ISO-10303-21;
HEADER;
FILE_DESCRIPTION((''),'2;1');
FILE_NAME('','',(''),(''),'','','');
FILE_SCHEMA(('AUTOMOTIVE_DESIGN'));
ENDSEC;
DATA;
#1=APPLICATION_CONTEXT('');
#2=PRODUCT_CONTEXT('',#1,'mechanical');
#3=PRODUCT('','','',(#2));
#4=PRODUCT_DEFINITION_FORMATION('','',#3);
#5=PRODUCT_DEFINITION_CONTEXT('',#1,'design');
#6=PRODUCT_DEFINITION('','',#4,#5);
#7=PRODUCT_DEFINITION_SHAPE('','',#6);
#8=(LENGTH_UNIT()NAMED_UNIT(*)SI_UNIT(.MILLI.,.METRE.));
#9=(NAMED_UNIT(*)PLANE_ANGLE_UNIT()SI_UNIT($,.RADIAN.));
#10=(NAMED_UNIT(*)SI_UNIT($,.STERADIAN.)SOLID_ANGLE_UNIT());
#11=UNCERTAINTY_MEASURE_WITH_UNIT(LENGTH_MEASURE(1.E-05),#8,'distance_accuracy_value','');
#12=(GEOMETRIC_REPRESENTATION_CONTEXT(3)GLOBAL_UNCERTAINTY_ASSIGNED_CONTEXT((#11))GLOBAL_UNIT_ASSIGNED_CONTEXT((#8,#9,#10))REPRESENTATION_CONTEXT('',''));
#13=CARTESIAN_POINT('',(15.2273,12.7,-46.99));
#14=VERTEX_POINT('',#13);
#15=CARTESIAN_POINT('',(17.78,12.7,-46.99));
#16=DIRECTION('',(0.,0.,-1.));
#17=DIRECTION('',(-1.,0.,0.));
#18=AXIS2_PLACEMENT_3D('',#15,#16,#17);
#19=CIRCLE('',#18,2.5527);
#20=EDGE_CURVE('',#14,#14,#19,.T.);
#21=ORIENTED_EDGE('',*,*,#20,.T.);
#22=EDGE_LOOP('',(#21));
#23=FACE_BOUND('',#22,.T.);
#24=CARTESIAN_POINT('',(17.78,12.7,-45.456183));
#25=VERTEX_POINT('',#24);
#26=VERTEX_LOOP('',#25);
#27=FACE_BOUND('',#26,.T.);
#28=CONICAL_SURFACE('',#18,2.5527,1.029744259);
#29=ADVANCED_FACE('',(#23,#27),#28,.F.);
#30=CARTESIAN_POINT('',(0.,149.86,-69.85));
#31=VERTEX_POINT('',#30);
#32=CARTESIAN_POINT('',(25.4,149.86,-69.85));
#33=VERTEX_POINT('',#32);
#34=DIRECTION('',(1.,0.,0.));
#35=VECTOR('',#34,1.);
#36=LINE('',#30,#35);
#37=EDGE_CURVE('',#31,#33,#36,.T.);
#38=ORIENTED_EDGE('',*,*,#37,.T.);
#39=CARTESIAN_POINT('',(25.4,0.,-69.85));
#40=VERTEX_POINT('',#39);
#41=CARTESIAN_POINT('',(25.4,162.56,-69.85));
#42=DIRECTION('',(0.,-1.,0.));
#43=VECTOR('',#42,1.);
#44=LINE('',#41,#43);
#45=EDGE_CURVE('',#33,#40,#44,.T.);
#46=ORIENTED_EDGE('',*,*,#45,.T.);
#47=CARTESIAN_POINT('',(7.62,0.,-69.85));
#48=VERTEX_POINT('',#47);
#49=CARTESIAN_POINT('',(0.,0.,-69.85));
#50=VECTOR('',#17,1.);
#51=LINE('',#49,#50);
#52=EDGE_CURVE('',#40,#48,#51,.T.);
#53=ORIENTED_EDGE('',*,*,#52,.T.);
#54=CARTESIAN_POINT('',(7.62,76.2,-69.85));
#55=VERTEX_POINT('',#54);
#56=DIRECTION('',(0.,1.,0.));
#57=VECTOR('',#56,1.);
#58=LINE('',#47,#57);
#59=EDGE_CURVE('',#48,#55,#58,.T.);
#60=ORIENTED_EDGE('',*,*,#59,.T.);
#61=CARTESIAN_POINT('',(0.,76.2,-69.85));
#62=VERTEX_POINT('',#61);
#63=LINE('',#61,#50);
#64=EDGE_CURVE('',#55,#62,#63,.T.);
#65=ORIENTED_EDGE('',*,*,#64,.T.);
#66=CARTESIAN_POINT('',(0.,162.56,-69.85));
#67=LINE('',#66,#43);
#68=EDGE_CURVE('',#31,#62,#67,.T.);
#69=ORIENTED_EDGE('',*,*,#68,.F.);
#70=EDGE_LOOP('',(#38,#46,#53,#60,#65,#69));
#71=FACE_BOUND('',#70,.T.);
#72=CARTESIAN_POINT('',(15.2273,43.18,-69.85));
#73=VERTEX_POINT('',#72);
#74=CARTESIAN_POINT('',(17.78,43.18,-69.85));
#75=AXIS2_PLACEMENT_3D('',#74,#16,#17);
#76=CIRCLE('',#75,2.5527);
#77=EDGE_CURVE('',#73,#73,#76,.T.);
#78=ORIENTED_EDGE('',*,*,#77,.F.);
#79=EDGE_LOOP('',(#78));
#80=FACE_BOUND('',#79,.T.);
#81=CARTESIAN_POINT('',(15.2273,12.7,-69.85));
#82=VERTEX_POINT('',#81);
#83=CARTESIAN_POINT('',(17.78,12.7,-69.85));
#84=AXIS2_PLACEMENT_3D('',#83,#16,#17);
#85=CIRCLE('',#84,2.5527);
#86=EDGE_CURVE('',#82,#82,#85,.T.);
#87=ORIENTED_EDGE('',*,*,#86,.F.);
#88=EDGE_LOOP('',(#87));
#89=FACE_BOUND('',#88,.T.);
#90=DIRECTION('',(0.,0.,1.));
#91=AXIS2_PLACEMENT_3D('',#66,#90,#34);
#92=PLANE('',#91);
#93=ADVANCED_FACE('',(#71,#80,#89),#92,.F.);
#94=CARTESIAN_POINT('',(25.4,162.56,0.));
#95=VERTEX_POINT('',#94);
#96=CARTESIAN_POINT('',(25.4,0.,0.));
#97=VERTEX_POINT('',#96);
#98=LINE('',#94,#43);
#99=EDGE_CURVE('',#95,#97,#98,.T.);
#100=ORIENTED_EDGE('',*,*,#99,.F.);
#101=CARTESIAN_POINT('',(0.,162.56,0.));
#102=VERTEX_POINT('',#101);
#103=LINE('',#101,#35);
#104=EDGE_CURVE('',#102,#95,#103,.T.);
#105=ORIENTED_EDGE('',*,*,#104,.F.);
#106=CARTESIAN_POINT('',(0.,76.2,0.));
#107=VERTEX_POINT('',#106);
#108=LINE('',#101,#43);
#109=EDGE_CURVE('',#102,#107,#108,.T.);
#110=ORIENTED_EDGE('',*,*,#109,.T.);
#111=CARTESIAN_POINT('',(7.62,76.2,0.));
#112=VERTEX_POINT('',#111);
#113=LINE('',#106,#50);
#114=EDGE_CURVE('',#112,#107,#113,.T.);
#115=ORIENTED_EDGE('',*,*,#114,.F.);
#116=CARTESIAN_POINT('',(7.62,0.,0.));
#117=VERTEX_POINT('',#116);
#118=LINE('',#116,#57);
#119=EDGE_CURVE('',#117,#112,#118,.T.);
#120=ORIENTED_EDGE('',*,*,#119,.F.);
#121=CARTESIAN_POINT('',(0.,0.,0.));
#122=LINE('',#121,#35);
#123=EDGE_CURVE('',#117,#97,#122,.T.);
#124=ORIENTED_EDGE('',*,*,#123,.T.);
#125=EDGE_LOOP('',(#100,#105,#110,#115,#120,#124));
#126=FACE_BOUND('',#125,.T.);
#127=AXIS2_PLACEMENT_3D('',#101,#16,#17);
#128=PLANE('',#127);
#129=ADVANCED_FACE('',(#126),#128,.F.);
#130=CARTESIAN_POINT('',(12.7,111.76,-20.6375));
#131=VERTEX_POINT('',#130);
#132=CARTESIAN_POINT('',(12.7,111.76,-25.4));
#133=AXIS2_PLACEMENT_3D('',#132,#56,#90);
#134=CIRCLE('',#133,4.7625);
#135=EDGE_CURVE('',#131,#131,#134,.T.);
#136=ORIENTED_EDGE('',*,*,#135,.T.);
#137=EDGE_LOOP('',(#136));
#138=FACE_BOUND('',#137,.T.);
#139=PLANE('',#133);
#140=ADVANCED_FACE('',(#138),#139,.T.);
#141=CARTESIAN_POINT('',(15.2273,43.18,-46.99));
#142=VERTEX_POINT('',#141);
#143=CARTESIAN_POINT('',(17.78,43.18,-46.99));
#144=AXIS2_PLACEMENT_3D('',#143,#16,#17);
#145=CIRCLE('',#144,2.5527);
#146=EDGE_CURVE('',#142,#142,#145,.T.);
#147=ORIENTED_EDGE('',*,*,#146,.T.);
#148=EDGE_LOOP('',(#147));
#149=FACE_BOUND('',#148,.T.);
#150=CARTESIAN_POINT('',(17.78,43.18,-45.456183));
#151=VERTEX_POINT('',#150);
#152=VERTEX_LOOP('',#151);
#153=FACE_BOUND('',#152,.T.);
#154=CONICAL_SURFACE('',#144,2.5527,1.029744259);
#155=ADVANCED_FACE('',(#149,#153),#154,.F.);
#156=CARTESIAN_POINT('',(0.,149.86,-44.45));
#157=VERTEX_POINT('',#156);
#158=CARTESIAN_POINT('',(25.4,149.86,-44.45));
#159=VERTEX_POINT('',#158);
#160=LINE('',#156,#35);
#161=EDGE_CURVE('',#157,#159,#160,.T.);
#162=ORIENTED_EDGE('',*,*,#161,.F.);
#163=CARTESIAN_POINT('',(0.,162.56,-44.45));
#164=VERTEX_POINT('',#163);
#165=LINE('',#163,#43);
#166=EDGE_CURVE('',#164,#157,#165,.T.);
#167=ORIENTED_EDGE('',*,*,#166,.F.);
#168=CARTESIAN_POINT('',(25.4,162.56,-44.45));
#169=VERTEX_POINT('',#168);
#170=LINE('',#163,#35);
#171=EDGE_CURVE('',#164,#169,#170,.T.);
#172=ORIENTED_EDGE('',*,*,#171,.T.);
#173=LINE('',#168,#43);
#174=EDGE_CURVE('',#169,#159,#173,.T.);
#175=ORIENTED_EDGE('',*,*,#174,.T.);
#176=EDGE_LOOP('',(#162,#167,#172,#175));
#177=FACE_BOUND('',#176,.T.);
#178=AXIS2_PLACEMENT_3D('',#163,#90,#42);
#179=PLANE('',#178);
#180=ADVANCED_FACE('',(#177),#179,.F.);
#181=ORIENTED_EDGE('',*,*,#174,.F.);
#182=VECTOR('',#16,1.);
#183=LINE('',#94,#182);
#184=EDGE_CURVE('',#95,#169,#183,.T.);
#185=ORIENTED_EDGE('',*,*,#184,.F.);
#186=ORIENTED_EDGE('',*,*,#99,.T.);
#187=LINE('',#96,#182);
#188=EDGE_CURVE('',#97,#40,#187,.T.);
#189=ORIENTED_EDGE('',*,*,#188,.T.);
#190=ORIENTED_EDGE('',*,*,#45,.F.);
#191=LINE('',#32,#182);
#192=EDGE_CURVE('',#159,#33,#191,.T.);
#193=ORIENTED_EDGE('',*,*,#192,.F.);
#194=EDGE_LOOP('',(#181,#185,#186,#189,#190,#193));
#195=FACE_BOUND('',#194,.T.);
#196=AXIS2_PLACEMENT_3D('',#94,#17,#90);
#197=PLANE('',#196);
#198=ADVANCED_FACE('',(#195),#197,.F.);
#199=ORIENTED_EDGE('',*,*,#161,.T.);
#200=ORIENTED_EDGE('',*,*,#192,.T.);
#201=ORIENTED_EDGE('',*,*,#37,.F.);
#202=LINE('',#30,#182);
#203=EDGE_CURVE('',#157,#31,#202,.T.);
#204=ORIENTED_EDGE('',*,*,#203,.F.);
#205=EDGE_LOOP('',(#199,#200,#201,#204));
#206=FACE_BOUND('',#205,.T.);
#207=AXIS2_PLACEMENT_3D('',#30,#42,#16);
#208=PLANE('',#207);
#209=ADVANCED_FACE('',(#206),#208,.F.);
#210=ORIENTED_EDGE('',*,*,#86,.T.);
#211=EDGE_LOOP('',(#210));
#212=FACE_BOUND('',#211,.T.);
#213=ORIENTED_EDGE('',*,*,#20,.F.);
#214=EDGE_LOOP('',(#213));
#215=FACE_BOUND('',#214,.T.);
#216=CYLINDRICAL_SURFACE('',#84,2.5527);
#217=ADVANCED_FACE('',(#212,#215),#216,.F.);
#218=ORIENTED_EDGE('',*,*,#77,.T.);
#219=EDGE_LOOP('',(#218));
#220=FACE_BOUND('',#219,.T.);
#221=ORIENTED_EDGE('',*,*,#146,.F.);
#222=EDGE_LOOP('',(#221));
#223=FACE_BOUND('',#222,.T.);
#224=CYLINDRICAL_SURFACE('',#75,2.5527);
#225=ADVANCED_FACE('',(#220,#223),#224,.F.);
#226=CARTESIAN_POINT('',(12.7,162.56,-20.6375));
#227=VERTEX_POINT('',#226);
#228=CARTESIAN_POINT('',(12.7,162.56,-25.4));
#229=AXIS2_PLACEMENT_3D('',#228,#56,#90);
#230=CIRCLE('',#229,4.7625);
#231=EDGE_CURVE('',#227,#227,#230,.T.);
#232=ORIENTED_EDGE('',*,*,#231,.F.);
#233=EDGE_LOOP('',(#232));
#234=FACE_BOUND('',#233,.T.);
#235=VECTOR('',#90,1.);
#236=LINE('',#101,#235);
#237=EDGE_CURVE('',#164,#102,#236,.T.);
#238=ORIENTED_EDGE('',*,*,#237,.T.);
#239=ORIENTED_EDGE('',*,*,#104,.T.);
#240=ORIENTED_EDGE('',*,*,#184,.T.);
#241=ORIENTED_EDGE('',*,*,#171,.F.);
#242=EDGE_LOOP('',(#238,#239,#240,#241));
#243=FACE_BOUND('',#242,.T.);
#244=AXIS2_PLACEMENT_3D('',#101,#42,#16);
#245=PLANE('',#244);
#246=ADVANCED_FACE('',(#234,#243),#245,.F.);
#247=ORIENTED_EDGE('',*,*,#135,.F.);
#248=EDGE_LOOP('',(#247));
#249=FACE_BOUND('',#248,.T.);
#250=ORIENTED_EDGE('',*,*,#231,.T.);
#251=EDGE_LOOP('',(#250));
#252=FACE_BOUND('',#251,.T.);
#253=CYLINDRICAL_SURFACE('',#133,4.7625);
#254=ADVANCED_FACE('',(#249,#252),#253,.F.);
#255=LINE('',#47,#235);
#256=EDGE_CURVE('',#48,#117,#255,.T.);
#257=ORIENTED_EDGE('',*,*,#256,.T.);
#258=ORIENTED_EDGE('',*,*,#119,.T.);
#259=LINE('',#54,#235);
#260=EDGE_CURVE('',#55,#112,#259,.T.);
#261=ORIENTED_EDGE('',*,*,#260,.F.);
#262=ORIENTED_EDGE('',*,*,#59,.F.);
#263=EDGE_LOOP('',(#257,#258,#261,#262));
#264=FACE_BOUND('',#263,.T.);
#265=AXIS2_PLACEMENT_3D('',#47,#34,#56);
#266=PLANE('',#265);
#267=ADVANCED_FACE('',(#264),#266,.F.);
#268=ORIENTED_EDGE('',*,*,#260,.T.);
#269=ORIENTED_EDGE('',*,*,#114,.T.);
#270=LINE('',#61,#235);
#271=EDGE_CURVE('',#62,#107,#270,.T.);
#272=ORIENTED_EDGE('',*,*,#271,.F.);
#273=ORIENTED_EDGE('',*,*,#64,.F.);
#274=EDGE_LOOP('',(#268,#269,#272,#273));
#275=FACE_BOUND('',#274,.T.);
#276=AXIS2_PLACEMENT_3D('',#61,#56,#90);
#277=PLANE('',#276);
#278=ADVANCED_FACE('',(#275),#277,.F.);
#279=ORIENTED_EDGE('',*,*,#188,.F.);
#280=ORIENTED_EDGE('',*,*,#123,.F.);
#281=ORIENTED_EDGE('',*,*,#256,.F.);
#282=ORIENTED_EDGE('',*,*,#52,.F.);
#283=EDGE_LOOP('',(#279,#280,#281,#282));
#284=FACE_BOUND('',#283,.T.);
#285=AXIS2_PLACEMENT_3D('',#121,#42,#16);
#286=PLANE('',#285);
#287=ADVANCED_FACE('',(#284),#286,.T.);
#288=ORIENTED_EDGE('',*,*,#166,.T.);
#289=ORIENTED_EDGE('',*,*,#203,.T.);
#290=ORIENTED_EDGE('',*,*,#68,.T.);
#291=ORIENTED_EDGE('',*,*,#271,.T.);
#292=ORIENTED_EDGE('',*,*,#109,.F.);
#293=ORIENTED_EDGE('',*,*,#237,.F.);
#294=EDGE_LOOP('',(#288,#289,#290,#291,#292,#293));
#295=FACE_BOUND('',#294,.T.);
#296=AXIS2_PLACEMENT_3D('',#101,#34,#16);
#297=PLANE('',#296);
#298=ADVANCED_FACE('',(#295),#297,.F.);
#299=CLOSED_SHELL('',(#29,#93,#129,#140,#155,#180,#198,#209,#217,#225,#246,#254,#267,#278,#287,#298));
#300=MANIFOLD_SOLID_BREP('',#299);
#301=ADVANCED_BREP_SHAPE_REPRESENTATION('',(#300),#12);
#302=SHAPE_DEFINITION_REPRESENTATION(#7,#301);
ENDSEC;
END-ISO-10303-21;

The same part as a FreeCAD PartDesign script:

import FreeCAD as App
import Part
import Sketcher
Q = App.Units.Quantity


def add_polygon(sketch, points):
    """Adds a closed chain of lines whose ends are joined by coincident constraints."""
    first, n = sketch.GeometryCount, len(points)
    for a, b in zip(points, points[1:] + points[:1]):
        sketch.addGeometry(Part.LineSegment(App.Vector(*a, 0), App.Vector(*b, 0)), False)
    for i in range(n):
        sketch.addConstraint(Sketcher.Constraint("Coincident", first + i, 2, first + (i + 1) % n, 1))

doc = App.newDocument("Part")
body = doc.addObject("PartDesign::Body", "Body")

# Sketch on XZ plane
sketch1 = body.newObject("Sketcher::SketchObject", "Sketch")
sketch1.AttachmentSupport = (doc.getObject("XZ_Plane"), [""])
sketch1.MapMode = "FlatFace"
add_polygon(sketch1, [(0, -70), (0, 0), (25, 0), (25, -70)])  # lines 0-3
sketch1.addConstraint(Sketcher.Constraint("Vertical", 0))
sketch1.addConstraint(Sketcher.Constraint("Horizontal", 1))
sketch1.addConstraint(Sketcher.Constraint("Vertical", 2))
sketch1.addConstraint(Sketcher.Constraint("Horizontal", 3))
sketch1.addConstraint(Sketcher.Constraint("Coincident", 0, 2, -1, 1))
sketch1.addConstraint(Sketcher.Constraint("DistanceX", 1, 1, 1, 2, Q("1 in")))
sketch1.addConstraint(Sketcher.Constraint("DistanceY", 0, 1, 0, 2, Q("2.75 in")))
pad1 = body.newObject("PartDesign::Pad", "Pad")
pad1.Profile = sketch1
pad1.Length = Q("6.4 in")
pad1.Reversed = True

# Sketch on XZ plane
sketch2 = body.newObject("Sketcher::SketchObject", "Sketch001")
sketch2.AttachmentSupport = (doc.getObject("XZ_Plane"), [""])
sketch2.MapMode = "FlatFace"
sketch2.AttachmentOffset = App.Placement(App.Vector(0, 0, -6.4 * 25.4), App.Rotation())
sketch2.addGeometry(Part.Circle(App.Vector(12.7, -25.4, 0), App.Vector(0, 0, 1), 4.8), False)
sketch2.addConstraint(Sketcher.Constraint("Diameter", 0, Q("0.375 in")))
sketch2.addConstraint(Sketcher.Constraint("DistanceY", 0, 3, -1, 1, Q("1 in")))
sketch2.addConstraint(Sketcher.Constraint("DistanceX", -1, 1, 0, 3, Q("0.5 in")))
pocket1 = body.newObject("PartDesign::Pocket", "Pocket")
pocket1.Profile = sketch2
pocket1.Length = Q("2 in")
pocket1.Reversed = True

# Sketch on XY plane
sketch3 = body.newObject("Sketcher::SketchObject", "Sketch002")
sketch3.AttachmentSupport = (doc.getObject("XY_Plane"), [""])
sketch3.MapMode = "FlatFace"
add_polygon(sketch3, [(0, 76), (0, 0), (8, 0), (8, 76)])  # lines 0-3
sketch3.addConstraint(Sketcher.Constraint("Vertical", 0))
sketch3.addConstraint(Sketcher.Constraint("Horizontal", 1))
sketch3.addConstraint(Sketcher.Constraint("Vertical", 2))
sketch3.addConstraint(Sketcher.Constraint("Horizontal", 3))
sketch3.addConstraint(Sketcher.Constraint("Coincident", 0, 2, -1, 1))
sketch3.addConstraint(Sketcher.Constraint("DistanceY", 0, 2, 0, 1, Q("3 in")))
sketch3.addConstraint(Sketcher.Constraint("DistanceX", 1, 1, 1, 2, Q("0.3 in")))
pocket2 = body.newObject("PartDesign::Pocket", "Pocket001")
pocket2.Profile = sketch3
pocket2.Type = "ThroughAll"

# Sketch on YZ plane
sketch4 = body.newObject("Sketcher::SketchObject", "Sketch003")
sketch4.AttachmentSupport = (doc.getObject("YZ_Plane"), [""])
sketch4.MapMode = "FlatFace"
sketch4.AttachmentOffset = App.Placement(App.Vector(0, 0, 1 * 25.4), App.Rotation())
add_polygon(sketch4, [(163, -44), (150, -44), (150, -70), (163, -70)])  # lines 0-3
sketch4.addConstraint(Sketcher.Constraint("Horizontal", 0))
sketch4.addConstraint(Sketcher.Constraint("Vertical", 1))
sketch4.addConstraint(Sketcher.Constraint("Horizontal", 2))
sketch4.addConstraint(Sketcher.Constraint("Vertical", 3))
sketch4.addConstraint(Sketcher.Constraint("DistanceY", 1, 2, 1, 1, Q("1 in")))
sketch4.addConstraint(Sketcher.Constraint("DistanceX", 0, 2, 0, 1, Q("0.5 in")))
sketch4.addConstraint(Sketcher.Constraint("DistanceX", -1, 1, 0, 2, Q("5.9 in")))
sketch4.addConstraint(Sketcher.Constraint("DistanceY", 0, 2, -1, 1, Q("1.75 in")))
pocket3 = body.newObject("PartDesign::Pocket", "Pocket002")
pocket3.Profile = sketch4
pocket3.Type = "ThroughAll"

# Sketch on XY plane
sketch5 = body.newObject("Sketcher::SketchObject", "Sketch004")
sketch5.AttachmentSupport = (doc.getObject("XY_Plane"), [""])
sketch5.MapMode = "FlatFace"
sketch5.AttachmentOffset = App.Placement(App.Vector(0, 0, -2.75 * 25.4), App.Rotation())
sketch5.addGeometry(Part.Circle(App.Vector(17.8, 43.2, 0), App.Vector(0, 0, 1), 2.6), False)
sketch5.addGeometry(Part.Circle(App.Vector(17.8, 12.7, 0), App.Vector(0, 0, 1), 2.6), False)
sketch5.addConstraint(Sketcher.Constraint("Equal", 0, 1))
sketch5.addConstraint(Sketcher.Constraint("Vertical", 0, 3, 1, 3))
sketch5.addConstraint(Sketcher.Constraint("Diameter", 0, Q("0.201 in")))
sketch5.addConstraint(Sketcher.Constraint("DistanceX", -1, 1, 0, 3, Q("0.7 in")))
sketch5.addConstraint(Sketcher.Constraint("DistanceY", -1, 1, 0, 3, Q("1.7 in")))
sketch5.addConstraint(Sketcher.Constraint("DistanceY", -1, 1, 1, 3, Q("0.5 in")))
doc.recompute()
hole = body.newObject("PartDesign::Hole", "Hole")
hole.Profile = sketch5
hole.ThreadType = "None"
hole.Diameter = Q("0.201 in")
hole.DepthType = "Dimension"
hole.Depth = Q("0.9 in")
hole.DrillPoint = "Angled"
hole.DrillPointAngle = 118
hole.Reversed = True

doc.recompute()
